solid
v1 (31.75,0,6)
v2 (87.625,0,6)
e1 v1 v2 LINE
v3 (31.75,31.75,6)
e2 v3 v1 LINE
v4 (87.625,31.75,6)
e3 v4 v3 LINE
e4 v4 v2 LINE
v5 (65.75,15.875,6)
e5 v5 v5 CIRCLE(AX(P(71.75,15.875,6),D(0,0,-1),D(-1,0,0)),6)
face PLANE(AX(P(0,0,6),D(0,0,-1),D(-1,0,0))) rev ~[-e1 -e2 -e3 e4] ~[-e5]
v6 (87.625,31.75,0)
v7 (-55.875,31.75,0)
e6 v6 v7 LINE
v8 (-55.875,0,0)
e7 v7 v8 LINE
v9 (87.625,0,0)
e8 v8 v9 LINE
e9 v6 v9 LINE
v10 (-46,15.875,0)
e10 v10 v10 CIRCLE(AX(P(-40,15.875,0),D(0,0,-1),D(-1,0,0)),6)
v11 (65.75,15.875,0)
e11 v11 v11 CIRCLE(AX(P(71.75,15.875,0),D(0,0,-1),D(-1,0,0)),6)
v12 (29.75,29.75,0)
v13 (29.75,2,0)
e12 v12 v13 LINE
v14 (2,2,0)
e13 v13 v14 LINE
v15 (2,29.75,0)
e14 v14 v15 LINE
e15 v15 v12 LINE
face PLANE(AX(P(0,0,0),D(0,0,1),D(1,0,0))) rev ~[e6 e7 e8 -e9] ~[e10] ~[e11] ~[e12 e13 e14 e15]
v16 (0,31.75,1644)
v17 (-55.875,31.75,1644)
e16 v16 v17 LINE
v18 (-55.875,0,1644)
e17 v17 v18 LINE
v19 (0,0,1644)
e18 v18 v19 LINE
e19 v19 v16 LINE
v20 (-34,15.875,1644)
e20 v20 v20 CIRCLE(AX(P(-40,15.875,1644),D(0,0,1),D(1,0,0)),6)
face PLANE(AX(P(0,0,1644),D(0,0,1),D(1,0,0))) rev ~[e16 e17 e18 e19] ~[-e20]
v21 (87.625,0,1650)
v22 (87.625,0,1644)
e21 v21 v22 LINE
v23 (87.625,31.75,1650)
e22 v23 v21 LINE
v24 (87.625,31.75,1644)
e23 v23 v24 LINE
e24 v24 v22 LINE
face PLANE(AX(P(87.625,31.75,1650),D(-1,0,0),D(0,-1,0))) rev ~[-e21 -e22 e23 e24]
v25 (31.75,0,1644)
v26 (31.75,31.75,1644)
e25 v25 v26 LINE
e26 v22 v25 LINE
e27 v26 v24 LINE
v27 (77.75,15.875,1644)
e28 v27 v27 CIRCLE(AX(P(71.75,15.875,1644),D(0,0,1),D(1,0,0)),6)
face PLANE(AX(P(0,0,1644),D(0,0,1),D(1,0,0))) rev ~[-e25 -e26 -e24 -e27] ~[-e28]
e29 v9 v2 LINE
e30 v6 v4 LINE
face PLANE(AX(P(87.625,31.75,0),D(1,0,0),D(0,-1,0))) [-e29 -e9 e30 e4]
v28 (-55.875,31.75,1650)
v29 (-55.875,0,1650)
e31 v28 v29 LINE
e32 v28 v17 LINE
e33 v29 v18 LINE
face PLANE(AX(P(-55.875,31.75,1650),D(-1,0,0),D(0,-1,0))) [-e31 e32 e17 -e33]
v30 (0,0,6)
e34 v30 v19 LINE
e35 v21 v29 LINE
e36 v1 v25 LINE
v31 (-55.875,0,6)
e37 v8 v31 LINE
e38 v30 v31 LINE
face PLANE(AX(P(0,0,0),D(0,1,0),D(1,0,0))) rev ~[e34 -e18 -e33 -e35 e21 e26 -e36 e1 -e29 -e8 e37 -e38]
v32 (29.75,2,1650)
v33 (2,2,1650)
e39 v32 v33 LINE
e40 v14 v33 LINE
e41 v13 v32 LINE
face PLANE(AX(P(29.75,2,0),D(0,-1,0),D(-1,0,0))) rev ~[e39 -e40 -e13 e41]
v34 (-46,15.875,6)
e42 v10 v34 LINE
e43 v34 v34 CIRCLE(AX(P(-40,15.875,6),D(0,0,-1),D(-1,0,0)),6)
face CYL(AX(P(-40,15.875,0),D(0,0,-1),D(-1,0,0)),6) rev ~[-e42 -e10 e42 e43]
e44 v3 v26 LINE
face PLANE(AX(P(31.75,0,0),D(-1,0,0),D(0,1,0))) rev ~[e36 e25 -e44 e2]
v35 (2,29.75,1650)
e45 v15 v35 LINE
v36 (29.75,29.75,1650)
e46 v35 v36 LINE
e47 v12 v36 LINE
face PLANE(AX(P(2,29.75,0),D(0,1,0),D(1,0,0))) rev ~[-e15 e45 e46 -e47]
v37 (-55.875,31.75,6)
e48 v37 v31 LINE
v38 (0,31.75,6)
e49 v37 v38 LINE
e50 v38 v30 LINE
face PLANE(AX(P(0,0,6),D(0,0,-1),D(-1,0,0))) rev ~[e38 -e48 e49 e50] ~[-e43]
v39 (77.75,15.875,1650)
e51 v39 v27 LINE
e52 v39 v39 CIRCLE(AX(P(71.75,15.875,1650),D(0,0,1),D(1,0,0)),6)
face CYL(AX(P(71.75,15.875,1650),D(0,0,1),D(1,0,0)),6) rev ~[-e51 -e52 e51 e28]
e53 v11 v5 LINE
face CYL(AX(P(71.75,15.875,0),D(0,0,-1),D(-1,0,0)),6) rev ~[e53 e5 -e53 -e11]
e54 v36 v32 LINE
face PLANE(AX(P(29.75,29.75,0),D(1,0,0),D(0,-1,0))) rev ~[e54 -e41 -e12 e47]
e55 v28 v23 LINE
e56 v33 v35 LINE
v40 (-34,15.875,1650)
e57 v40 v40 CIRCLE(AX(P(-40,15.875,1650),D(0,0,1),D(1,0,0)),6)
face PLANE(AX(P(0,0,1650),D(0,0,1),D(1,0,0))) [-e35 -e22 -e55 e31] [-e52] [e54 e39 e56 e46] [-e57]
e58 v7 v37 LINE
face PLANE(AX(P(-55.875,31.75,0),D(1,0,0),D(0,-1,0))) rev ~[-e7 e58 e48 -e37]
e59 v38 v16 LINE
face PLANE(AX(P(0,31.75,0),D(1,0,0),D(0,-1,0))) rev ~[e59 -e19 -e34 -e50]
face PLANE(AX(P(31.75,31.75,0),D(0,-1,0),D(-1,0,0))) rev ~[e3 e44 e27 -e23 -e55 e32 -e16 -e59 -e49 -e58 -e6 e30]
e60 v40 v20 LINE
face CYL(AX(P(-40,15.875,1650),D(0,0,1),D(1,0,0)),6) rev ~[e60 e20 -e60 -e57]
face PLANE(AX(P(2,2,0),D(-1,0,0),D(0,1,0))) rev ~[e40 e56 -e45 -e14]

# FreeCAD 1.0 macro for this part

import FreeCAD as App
import Part
import Sketcher

doc = App.newDocument("Part")
params = doc.addObject("Spreadsheet::Sheet", "Params")
for row, (alias, value) in enumerate([
    ("sketch1_width", "31.75 mm"),
    ("pad1_length", "1650 mm"),
    ("sketch2_diameter", "12 mm"),
    ("sketch2_height", "31.75 mm"),
    ("pad2_length", "6 mm"),
    ("sketch3_diameter", "12 mm"),
    ("sketch3_height", "31.75 mm"),
    ("pad3_length", "6 mm"),
], start=1):
    params.set(f"A{row}", alias)
    params.set(f"B{row}", "=" + value)
    params.setAlias(f"B{row}", alias)

body = doc.addObject("PartDesign::Body", "Body")

sketch1 = body.newObject("Sketcher::SketchObject", "Sketch")
sketch1.AttachmentSupport = (doc.getObject("XY_Plane"), [""])
sketch1.MapMode = "FlatFace"
sketch1.addGeometry(Part.LineSegment(App.Vector(0, 32, 0), App.Vector(0, 0, 0)), False)
sketch1.addGeometry(Part.LineSegment(App.Vector(0, 0, 0), App.Vector(32, 0, 0)), False)
sketch1.addGeometry(Part.LineSegment(App.Vector(32, 0, 0), App.Vector(32, 32, 0)), False)
sketch1.addGeometry(Part.LineSegment(App.Vector(32, 32, 0), App.Vector(0, 32, 0)), False)
sketch1.addGeometry(Part.LineSegment(App.Vector(2, 2, 0), App.Vector(2, 30, 0)), False)
sketch1.addGeometry(Part.LineSegment(App.Vector(2, 30, 0), App.Vector(30, 30, 0)), False)
sketch1.addGeometry(Part.LineSegment(App.Vector(30, 30, 0), App.Vector(30, 2, 0)), False)
sketch1.addGeometry(Part.LineSegment(App.Vector(30, 2, 0), App.Vector(2, 2, 0)), False)
sketch1.addConstraint(Sketcher.Constraint("Coincident", 0, 2, 1, 1))
sketch1.addConstraint(Sketcher.Constraint("Coincident", 1, 2, 2, 1))
sketch1.addConstraint(Sketcher.Constraint("Coincident", 2, 2, 3, 1))
sketch1.addConstraint(Sketcher.Constraint("Coincident", 3, 2, 0, 1))
sketch1.addConstraint(Sketcher.Constraint("Coincident", 4, 2, 5, 1))
sketch1.addConstraint(Sketcher.Constraint("Coincident", 5, 2, 6, 1))
sketch1.addConstraint(Sketcher.Constraint("Coincident", 6, 2, 7, 1))
sketch1.addConstraint(Sketcher.Constraint("Coincident", 7, 2, 4, 1))
sketch1.addConstraint(Sketcher.Constraint("Vertical", 0))
sketch1.addConstraint(Sketcher.Constraint("Horizontal", 1))
sketch1.addConstraint(Sketcher.Constraint("Vertical", 2))
sketch1.addConstraint(Sketcher.Constraint("Horizontal", 3))
sketch1.addConstraint(Sketcher.Constraint("Vertical", 4))
sketch1.addConstraint(Sketcher.Constraint("Horizontal", 5))
sketch1.addConstraint(Sketcher.Constraint("Vertical", 6))
sketch1.addConstraint(Sketcher.Constraint("Horizontal", 7))
sketch1.addConstraint(Sketcher.Constraint("Coincident", 0, 2, -1, 1))
sketch1.addConstraint(Sketcher.Constraint("Equal", 3, 0))
sketch1.addConstraint(Sketcher.Constraint("Equal", 7, 4))
sketch1.addConstraint(Sketcher.Constraint("DistanceX", -1, 1, 4, 2, 2.0))
sketch1.addConstraint(Sketcher.Constraint("DistanceY", -1, 1, 6, 2, 2.0))
sketch1.addConstraint(Sketcher.Constraint("DistanceY", 4, 2, 3, 2, 2.0))
sketch1.addConstraint(Sketcher.Constraint("DistanceX", 1, 1, 1, 2, 31.75))
sketch1.setExpression("Constraints[22]", "Params.sketch1_width")
pad1 = body.newObject("PartDesign::Pad", "Pad")
pad1.Profile = sketch1
pad1.setExpression("Length", "Params.pad1_length")

sketch2 = body.newObject("Sketcher::SketchObject", "Sketch001")
sketch2.AttachmentSupport = (doc.getObject("XY_Plane"), [""])
sketch2.MapMode = "FlatFace"
sketch2.AttachmentOffset = App.Placement(App.Vector(0, 0, 1650), App.Rotation())
sketch2.addGeometry(Part.LineSegment(App.Vector(0, 0, 0), App.Vector(0, 32, 0)), False)
sketch2.addGeometry(Part.LineSegment(App.Vector(0, 32, 0), App.Vector(-56, 32, 0)), False)
sketch2.addGeometry(Part.LineSegment(App.Vector(-56, 32, 0), App.Vector(-56, 0, 0)), False)
sketch2.addGeometry(Part.LineSegment(App.Vector(-56, 0, 0), App.Vector(0, 0, 0)), False)
sketch2.addGeometry(Part.Circle(App.Vector(-40, 16, 0), App.Vector(0, 0, 1), 6), False)
sketch2.addGeometry(Part.LineSegment(App.Vector(88, 32, 0), App.Vector(32, 32, 0)), False)
sketch2.addGeometry(Part.LineSegment(App.Vector(32, 32, 0), App.Vector(32, 0, 0)), False)
sketch2.addGeometry(Part.LineSegment(App.Vector(32, 0, 0), App.Vector(88, 0, 0)), False)
sketch2.addGeometry(Part.LineSegment(App.Vector(88, 0, 0), App.Vector(88, 32, 0)), False)
sketch2.addGeometry(Part.Circle(App.Vector(72, 16, 0), App.Vector(0, 0, 1), 6), False)
sketch2.addConstraint(Sketcher.Constraint("Coincident", 0, 2, 1, 1))
sketch2.addConstraint(Sketcher.Constraint("Coincident", 1, 2, 2, 1))
sketch2.addConstraint(Sketcher.Constraint("Coincident", 2, 2, 3, 1))
sketch2.addConstraint(Sketcher.Constraint("Coincident", 3, 2, 0, 1))
sketch2.addConstraint(Sketcher.Constraint("Coincident", 5, 2, 6, 1))
sketch2.addConstraint(Sketcher.Constraint("Coincident", 6, 2, 7, 1))
sketch2.addConstraint(Sketcher.Constraint("Coincident", 7, 2, 8, 1))
sketch2.addConstraint(Sketcher.Constraint("Coincident", 8, 2, 5, 1))
sketch2.addConstraint(Sketcher.Constraint("Vertical", 0))
sketch2.addConstraint(Sketcher.Constraint("Horizontal", 1))
sketch2.addConstraint(Sketcher.Constraint("Vertical", 2))
sketch2.addConstraint(Sketcher.Constraint("Horizontal", 3))
sketch2.addConstraint(Sketcher.Constraint("Horizontal", 5))
sketch2.addConstraint(Sketcher.Constraint("Vertical", 6))
sketch2.addConstraint(Sketcher.Constraint("Horizontal", 7))
sketch2.addConstraint(Sketcher.Constraint("Vertical", 8))
sketch2.addConstraint(Sketcher.Constraint("Coincident", 3, 2, -1, 1))
sketch2.addConstraint(Sketcher.Constraint("Equal", 4, 9))
sketch2.addConstraint(Sketcher.Constraint("PointOnObject", 6, 2, -1))
sketch2.addConstraint(Sketcher.Constraint("Horizontal", 4, 3, 9, 3))
sketch2.addConstraint(Sketcher.Constraint("Horizontal", 1, 2, 5, 2))
sketch2.addConstraint(Sketcher.Constraint("Equal", 3, 5))
sketch2.addConstraint(Sketcher.Constraint("Diameter", 4, 12.0))
sketch2.addConstraint(Sketcher.Constraint("DistanceX", 4, 3, -1, 1, 40.0))
sketch2.addConstraint(Sketcher.Constraint("DistanceX", 5, 2, 9, 3, 40.0))
sketch2.addConstraint(Sketcher.Constraint("DistanceX", 1, 2, 1, 1, 55.875))
sketch2.addConstraint(Sketcher.Constraint("DistanceX", 4, 3, 9, 3, 111.75))
sketch2.addConstraint(Sketcher.Constraint("DistanceY", 0, 1, 0, 2, 31.75))
sketch2.addConstraint(Sketcher.Constraint("DistanceY", -1, 1, 4, 3, 15.875))
sketch2.setExpression("Constraints[22]", "Params.sketch2_diameter")
sketch2.setExpression("Constraints[27]", "Params.sketch2_height")
pad2 = body.newObject("PartDesign::Pad", "Pad001")
pad2.Profile = sketch2
pad2.setExpression("Length", "Params.pad2_length")
pad2.Reversed = True

sketch3 = body.newObject("Sketcher::SketchObject", "Sketch002")
sketch3.AttachmentSupport = (doc.getObject("XY_Plane"), [""])
sketch3.MapMode = "FlatFace"
sketch3.addGeometry(Part.LineSegment(App.Vector(32, 32, 0), App.Vector(88, 32, 0)), False)
sketch3.addGeometry(Part.LineSegment(App.Vector(88, 32, 0), App.Vector(88, 0, 0)), False)
sketch3.addGeometry(Part.LineSegment(App.Vector(88, 0, 0), App.Vector(32, 0, 0)), False)
sketch3.addGeometry(Part.LineSegment(App.Vector(32, 0, 0), App.Vector(32, 32, 0)), False)
sketch3.addGeometry(Part.Circle(App.Vector(72, 16, 0), App.Vector(0, 0, 1), 6), False)
sketch3.addGeometry(Part.LineSegment(App.Vector(-56, 32, 0), App.Vector(0, 32, 0)), False)
sketch3.addGeometry(Part.LineSegment(App.Vector(0, 32, 0), App.Vector(0, 0, 0)), False)
sketch3.addGeometry(Part.LineSegment(App.Vector(0, 0, 0), App.Vector(-56, 0, 0)), False)
sketch3.addGeometry(Part.LineSegment(App.Vector(-56, 0, 0), App.Vector(-56, 32, 0)), False)
sketch3.addGeometry(Part.Circle(App.Vector(-40, 16, 0), App.Vector(0, 0, 1), 6), False)
sketch3.addConstraint(Sketcher.Constraint("Coincident", 0, 2, 1, 1))
sketch3.addConstraint(Sketcher.Constraint("Coincident", 1, 2, 2, 1))
sketch3.addConstraint(Sketcher.Constraint("Coincident", 2, 2, 3, 1))
sketch3.addConstraint(Sketcher.Constraint("Coincident", 3, 2, 0, 1))
sketch3.addConstraint(Sketcher.Constraint("Coincident", 5, 2, 6, 1))
sketch3.addConstraint(Sketcher.Constraint("Coincident", 6, 2, 7, 1))
sketch3.addConstraint(Sketcher.Constraint("Coincident", 7, 2, 8, 1))
sketch3.addConstraint(Sketcher.Constraint("Coincident", 8, 2, 5, 1))
sketch3.addConstraint(Sketcher.Constraint("Horizontal", 0))
sketch3.addConstraint(Sketcher.Constraint("Vertical", 1))
sketch3.addConstraint(Sketcher.Constraint("Horizontal", 2))
sketch3.addConstraint(Sketcher.Constraint("Vertical", 3))
sketch3.addConstraint(Sketcher.Constraint("Horizontal", 5))
sketch3.addConstraint(Sketcher.Constraint("Vertical", 6))
sketch3.addConstraint(Sketcher.Constraint("Horizontal", 7))
sketch3.addConstraint(Sketcher.Constraint("Vertical", 8))
sketch3.addConstraint(Sketcher.Constraint("Coincident", 6, 2, -1, 1))
sketch3.addConstraint(Sketcher.Constraint("Equal", 4, 9))
sketch3.addConstraint(Sketcher.Constraint("PointOnObject", 1, 2, -1))
sketch3.addConstraint(Sketcher.Constraint("Horizontal", 4, 3, 9, 3))
sketch3.addConstraint(Sketcher.Constraint("Horizontal", 3, 2, 5, 2))
sketch3.addConstraint(Sketcher.Constraint("Equal", 2, 5))
sketch3.addConstraint(Sketcher.Constraint("Diameter", 4, 12.0))
sketch3.addConstraint(Sketcher.Constraint("DistanceX", 9, 3, -1, 1, 40.0))
sketch3.addConstraint(Sketcher.Constraint("DistanceX", 2, 2, 4, 3, 40.0))
sketch3.addConstraint(Sketcher.Constraint("DistanceX", 0, 1, 0, 2, 55.875))
sketch3.addConstraint(Sketcher.Constraint("DistanceX", 9, 3, 4, 3, 111.75))
sketch3.addConstraint(Sketcher.Constraint("DistanceY", 1, 2, 1, 1, 31.75))
sketch3.addConstraint(Sketcher.Constraint("DistanceY", -1, 1, 4, 3, 15.875))
sketch3.setExpression("Constraints[22]", "Params.sketch3_diameter")
sketch3.setExpression("Constraints[27]", "Params.sketch3_height")
pad3 = body.newObject("PartDesign::Pad", "Pad002")
pad3.Profile = sketch3
pad3.setExpression("Length", "Params.pad3_length")

doc.recompute()
